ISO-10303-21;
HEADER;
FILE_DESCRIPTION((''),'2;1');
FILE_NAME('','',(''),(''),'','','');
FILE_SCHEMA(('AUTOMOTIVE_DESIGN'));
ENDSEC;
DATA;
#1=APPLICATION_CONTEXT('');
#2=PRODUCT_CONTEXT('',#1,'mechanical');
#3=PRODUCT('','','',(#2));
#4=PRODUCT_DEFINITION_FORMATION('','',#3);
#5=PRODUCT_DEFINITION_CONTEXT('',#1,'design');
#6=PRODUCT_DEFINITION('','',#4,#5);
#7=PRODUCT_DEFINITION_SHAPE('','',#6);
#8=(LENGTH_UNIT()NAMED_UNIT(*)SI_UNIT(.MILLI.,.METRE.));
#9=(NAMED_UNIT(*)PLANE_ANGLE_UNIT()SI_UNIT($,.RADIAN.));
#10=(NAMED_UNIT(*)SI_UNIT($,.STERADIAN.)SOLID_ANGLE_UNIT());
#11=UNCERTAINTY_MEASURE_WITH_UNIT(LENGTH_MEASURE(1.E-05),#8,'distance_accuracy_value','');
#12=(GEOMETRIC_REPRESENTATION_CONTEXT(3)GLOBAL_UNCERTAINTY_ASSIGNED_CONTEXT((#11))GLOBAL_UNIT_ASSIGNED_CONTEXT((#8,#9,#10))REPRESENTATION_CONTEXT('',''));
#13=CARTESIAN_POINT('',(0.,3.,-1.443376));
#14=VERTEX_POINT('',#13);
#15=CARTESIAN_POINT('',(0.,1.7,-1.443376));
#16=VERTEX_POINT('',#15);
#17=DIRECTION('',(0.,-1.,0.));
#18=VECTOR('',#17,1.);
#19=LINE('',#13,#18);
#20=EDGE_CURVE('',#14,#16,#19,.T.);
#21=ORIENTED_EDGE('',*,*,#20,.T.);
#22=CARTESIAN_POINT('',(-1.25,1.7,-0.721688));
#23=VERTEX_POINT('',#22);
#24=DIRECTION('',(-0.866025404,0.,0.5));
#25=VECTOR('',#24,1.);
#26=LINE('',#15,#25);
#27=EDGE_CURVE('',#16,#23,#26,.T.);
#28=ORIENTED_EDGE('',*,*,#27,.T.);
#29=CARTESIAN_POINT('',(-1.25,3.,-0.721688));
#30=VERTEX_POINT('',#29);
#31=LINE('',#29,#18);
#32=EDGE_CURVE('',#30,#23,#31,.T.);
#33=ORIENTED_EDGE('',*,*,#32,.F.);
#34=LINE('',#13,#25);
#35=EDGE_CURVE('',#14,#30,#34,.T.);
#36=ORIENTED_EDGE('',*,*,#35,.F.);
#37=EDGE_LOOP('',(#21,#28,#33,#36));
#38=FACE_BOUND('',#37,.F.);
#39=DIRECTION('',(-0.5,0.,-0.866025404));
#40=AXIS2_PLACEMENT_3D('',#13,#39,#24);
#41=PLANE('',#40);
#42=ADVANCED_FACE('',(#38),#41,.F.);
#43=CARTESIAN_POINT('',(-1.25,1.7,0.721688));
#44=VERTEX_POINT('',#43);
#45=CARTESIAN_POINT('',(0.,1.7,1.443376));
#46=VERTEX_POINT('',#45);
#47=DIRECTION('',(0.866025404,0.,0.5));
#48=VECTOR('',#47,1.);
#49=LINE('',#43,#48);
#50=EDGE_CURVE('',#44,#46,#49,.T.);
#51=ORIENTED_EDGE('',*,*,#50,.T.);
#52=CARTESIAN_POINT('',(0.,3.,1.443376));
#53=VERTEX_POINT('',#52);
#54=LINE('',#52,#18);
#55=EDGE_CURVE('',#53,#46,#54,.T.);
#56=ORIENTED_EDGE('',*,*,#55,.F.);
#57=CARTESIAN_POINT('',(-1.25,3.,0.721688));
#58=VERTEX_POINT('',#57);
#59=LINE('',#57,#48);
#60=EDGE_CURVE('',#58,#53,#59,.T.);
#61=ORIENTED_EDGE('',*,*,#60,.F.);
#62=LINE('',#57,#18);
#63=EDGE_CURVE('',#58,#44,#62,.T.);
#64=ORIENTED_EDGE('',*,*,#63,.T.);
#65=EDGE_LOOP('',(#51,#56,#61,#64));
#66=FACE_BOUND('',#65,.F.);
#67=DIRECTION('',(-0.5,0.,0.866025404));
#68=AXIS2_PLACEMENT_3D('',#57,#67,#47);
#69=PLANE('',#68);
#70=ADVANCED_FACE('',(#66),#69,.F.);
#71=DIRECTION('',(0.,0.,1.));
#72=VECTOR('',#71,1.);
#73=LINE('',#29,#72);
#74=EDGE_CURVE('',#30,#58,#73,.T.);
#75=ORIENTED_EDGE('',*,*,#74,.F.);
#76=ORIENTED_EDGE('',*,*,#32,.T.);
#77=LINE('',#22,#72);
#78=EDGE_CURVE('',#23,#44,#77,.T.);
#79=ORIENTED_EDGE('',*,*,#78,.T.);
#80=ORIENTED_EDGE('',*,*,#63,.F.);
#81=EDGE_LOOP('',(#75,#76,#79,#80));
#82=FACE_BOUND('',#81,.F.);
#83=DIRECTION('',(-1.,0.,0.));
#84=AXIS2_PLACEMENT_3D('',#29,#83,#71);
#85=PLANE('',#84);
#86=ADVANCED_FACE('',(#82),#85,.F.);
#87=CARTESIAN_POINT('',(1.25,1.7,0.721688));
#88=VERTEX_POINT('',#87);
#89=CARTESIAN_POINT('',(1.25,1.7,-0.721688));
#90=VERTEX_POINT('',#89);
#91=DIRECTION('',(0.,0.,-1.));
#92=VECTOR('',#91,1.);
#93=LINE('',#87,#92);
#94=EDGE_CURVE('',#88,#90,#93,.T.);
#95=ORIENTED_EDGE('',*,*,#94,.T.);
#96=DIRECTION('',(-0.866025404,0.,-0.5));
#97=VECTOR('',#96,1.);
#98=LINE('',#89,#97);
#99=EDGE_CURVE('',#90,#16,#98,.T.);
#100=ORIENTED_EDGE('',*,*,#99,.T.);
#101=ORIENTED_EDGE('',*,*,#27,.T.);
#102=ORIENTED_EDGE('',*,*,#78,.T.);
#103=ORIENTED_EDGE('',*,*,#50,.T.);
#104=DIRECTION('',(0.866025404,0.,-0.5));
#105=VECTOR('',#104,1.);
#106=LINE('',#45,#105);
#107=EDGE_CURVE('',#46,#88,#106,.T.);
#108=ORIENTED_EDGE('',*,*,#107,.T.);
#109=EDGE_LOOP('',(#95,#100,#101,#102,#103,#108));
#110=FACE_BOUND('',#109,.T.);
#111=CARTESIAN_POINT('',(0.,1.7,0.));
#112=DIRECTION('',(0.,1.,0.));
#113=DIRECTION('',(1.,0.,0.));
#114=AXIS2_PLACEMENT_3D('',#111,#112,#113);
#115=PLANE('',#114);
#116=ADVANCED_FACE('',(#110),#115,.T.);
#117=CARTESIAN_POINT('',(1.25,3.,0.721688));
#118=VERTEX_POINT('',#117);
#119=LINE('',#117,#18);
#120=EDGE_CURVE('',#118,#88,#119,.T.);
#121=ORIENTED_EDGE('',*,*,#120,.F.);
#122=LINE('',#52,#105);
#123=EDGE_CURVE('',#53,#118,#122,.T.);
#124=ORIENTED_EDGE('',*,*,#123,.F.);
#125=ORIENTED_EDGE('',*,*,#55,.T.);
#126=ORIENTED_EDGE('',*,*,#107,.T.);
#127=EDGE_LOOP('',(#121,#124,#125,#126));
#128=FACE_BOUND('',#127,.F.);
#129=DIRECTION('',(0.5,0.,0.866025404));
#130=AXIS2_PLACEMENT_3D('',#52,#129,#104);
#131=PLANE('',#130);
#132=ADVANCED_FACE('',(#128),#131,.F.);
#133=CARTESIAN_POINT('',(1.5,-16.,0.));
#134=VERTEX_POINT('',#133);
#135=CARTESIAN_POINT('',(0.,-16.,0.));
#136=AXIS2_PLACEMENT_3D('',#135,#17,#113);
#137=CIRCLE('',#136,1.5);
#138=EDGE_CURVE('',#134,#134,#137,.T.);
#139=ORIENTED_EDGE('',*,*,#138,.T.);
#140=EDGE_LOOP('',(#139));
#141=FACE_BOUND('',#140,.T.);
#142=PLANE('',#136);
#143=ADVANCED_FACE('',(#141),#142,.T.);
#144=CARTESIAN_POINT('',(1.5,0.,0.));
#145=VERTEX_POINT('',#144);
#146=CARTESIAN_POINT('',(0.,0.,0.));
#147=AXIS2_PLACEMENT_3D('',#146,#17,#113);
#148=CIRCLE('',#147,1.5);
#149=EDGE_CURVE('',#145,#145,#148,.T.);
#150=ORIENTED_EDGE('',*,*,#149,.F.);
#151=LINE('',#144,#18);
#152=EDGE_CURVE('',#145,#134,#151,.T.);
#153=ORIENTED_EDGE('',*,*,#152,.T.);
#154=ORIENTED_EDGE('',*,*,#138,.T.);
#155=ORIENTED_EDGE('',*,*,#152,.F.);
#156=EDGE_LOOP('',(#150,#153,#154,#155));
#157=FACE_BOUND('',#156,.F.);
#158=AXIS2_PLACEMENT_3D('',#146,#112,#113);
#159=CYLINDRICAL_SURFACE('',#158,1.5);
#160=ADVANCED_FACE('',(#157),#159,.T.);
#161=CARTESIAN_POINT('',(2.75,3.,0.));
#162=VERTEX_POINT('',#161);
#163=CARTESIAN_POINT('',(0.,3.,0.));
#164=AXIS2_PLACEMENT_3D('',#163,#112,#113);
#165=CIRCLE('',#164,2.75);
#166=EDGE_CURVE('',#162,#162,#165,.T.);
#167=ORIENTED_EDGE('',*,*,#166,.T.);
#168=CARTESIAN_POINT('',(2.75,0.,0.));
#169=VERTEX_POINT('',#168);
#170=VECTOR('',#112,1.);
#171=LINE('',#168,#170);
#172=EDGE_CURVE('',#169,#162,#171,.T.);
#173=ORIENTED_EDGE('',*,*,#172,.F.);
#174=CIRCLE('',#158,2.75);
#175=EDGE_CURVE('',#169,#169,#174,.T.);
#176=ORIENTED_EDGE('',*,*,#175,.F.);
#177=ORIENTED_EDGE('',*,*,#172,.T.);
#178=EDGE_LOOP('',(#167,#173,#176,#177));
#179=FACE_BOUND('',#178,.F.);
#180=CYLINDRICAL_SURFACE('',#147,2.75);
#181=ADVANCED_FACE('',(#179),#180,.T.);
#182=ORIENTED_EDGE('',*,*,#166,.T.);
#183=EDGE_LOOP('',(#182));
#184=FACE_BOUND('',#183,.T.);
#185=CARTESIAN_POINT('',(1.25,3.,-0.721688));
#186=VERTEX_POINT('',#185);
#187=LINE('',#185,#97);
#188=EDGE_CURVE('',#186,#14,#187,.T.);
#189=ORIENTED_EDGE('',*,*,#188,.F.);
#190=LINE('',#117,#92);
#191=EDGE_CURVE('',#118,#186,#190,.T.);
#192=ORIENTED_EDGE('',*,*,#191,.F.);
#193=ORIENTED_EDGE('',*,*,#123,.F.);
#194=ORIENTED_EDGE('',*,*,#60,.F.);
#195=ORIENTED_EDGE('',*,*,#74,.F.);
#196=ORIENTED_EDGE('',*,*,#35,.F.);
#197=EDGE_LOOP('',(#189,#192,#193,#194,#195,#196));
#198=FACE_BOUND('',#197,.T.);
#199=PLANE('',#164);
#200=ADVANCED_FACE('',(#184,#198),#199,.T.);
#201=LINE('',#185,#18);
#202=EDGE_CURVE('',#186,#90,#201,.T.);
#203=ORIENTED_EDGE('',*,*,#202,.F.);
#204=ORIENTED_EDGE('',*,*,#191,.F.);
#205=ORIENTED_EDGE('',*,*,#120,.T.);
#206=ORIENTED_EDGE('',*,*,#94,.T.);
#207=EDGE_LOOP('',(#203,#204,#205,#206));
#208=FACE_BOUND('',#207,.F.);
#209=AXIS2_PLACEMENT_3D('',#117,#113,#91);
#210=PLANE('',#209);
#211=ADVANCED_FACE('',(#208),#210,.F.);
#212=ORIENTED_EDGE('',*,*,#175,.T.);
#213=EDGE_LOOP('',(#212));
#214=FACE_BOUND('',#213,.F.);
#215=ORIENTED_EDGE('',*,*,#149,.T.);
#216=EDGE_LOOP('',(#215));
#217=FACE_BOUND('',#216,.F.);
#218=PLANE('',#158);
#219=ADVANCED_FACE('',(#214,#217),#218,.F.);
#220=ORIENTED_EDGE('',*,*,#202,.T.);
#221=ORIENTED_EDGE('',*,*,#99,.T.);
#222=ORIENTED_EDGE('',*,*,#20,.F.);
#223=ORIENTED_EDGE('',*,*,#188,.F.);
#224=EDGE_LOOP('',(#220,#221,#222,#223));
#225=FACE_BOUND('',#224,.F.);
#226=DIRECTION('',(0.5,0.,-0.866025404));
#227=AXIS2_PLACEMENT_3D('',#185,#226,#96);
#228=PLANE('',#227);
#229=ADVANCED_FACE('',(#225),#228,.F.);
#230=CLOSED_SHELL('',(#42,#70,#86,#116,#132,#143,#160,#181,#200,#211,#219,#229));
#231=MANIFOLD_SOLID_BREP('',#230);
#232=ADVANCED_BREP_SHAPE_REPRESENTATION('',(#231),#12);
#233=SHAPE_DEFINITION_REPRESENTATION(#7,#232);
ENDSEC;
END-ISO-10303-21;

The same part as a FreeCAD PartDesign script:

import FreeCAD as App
import Part
import Sketcher

V = App.Vector
Q = App.Units.Quantity

doc = App.newDocument("Part")
body = doc.addObject("PartDesign::Body", "Body")

sketch1 = body.newObject("Sketcher::SketchObject", "Sketch")
sketch1.AttachmentSupport = (doc.getObject("XZ_Plane"), [""])
sketch1.MapMode = "FlatFace"
sketch1.addGeometry(Part.Circle(V(0, 0, 0), V(0, 0, 1), 2.8), False)
sketch1.addConstraint([
    Sketcher.Constraint("Coincident", 0, 3, -1, 1),
    Sketcher.Constraint("Diameter", 0, 5.5),
])
pad1 = body.newObject("PartDesign::Pad", "Pad")
pad1.Profile = sketch1
pad1.Length = 3
pad1.Reversed = True

sketch2 = body.newObject("Sketcher::SketchObject", "Sketch001")
sketch2.AttachmentSupport = (doc.getObject("XZ_Plane"), [""])
sketch2.MapMode = "FlatFace"
sketch2.AttachmentOffset = App.Placement(V(0, 0, -3), App.Rotation())
sketch2.addGeometry([
    Part.LineSegment(V(0, -1.4, 0), V(-1.2, -0.7, 0)),
    Part.LineSegment(V(-1.2, -0.7, 0), V(-1.2, 0.7, 0)),
    Part.LineSegment(V(-1.2, 0.7, 0), V(0, 1.4, 0)),
    Part.LineSegment(V(0, 1.4, 0), V(1.2, 0.7, 0)),
    Part.LineSegment(V(1.2, 0.7, 0), V(1.2, -0.7, 0)),
    Part.LineSegment(V(1.2, -0.7, 0), V(0, -1.4, 0)),
], False)
sketch2.addConstraint([
    Sketcher.Constraint("Coincident", 0, 2, 1, 1),
    Sketcher.Constraint("Coincident", 1, 2, 2, 1),
    Sketcher.Constraint("Coincident", 2, 2, 3, 1),
    Sketcher.Constraint("Coincident", 3, 2, 4, 1),
    Sketcher.Constraint("Coincident", 4, 2, 5, 1),
    Sketcher.Constraint("Coincident", 5, 2, 0, 1),
    Sketcher.Constraint("Vertical", 1),
    Sketcher.Constraint("Vertical", 4),
    Sketcher.Constraint("Symmetric", 0, 2, 3, 2, -1, 1),
    Sketcher.Constraint("Symmetric", 2, 2, 5, 2, -1, 1),
    Sketcher.Constraint("PointOnObject", 2, 2, -2),
    Sketcher.Constraint("Parallel", 2, 5),
    Sketcher.Constraint("Horizontal", 1, 2, 3, 2),
    Sketcher.Constraint("Angle", 0, Q("150 deg")),
    Sketcher.Constraint("DistanceX", 1, 2, 3, 2, 2.5),
    Sketcher.Constraint("DistanceY", 1, 1, 1, 2, 1.443376),
])
pocket1 = body.newObject("PartDesign::Pocket", "Pocket")
pocket1.Profile = sketch2
pocket1.Length = 1.3
pocket1.Reversed = True

sketch3 = body.newObject("Sketcher::SketchObject", "Sketch002")
sketch3.AttachmentSupport = (doc.getObject("XZ_Plane"), [""])
sketch3.MapMode = "FlatFace"
sketch3.addGeometry(Part.Circle(V(0, 0, 0), V(0, 0, 1), 1.5), False)
sketch3.addConstraint([
    Sketcher.Constraint("Coincident", 0, 3, -1, 1),
    Sketcher.Constraint("Diameter", 0, 3.0),
])
pad2 = body.newObject("PartDesign::Pad", "Pad001")
pad2.Profile = sketch3
pad2.Length = 16

doc.recompute()
